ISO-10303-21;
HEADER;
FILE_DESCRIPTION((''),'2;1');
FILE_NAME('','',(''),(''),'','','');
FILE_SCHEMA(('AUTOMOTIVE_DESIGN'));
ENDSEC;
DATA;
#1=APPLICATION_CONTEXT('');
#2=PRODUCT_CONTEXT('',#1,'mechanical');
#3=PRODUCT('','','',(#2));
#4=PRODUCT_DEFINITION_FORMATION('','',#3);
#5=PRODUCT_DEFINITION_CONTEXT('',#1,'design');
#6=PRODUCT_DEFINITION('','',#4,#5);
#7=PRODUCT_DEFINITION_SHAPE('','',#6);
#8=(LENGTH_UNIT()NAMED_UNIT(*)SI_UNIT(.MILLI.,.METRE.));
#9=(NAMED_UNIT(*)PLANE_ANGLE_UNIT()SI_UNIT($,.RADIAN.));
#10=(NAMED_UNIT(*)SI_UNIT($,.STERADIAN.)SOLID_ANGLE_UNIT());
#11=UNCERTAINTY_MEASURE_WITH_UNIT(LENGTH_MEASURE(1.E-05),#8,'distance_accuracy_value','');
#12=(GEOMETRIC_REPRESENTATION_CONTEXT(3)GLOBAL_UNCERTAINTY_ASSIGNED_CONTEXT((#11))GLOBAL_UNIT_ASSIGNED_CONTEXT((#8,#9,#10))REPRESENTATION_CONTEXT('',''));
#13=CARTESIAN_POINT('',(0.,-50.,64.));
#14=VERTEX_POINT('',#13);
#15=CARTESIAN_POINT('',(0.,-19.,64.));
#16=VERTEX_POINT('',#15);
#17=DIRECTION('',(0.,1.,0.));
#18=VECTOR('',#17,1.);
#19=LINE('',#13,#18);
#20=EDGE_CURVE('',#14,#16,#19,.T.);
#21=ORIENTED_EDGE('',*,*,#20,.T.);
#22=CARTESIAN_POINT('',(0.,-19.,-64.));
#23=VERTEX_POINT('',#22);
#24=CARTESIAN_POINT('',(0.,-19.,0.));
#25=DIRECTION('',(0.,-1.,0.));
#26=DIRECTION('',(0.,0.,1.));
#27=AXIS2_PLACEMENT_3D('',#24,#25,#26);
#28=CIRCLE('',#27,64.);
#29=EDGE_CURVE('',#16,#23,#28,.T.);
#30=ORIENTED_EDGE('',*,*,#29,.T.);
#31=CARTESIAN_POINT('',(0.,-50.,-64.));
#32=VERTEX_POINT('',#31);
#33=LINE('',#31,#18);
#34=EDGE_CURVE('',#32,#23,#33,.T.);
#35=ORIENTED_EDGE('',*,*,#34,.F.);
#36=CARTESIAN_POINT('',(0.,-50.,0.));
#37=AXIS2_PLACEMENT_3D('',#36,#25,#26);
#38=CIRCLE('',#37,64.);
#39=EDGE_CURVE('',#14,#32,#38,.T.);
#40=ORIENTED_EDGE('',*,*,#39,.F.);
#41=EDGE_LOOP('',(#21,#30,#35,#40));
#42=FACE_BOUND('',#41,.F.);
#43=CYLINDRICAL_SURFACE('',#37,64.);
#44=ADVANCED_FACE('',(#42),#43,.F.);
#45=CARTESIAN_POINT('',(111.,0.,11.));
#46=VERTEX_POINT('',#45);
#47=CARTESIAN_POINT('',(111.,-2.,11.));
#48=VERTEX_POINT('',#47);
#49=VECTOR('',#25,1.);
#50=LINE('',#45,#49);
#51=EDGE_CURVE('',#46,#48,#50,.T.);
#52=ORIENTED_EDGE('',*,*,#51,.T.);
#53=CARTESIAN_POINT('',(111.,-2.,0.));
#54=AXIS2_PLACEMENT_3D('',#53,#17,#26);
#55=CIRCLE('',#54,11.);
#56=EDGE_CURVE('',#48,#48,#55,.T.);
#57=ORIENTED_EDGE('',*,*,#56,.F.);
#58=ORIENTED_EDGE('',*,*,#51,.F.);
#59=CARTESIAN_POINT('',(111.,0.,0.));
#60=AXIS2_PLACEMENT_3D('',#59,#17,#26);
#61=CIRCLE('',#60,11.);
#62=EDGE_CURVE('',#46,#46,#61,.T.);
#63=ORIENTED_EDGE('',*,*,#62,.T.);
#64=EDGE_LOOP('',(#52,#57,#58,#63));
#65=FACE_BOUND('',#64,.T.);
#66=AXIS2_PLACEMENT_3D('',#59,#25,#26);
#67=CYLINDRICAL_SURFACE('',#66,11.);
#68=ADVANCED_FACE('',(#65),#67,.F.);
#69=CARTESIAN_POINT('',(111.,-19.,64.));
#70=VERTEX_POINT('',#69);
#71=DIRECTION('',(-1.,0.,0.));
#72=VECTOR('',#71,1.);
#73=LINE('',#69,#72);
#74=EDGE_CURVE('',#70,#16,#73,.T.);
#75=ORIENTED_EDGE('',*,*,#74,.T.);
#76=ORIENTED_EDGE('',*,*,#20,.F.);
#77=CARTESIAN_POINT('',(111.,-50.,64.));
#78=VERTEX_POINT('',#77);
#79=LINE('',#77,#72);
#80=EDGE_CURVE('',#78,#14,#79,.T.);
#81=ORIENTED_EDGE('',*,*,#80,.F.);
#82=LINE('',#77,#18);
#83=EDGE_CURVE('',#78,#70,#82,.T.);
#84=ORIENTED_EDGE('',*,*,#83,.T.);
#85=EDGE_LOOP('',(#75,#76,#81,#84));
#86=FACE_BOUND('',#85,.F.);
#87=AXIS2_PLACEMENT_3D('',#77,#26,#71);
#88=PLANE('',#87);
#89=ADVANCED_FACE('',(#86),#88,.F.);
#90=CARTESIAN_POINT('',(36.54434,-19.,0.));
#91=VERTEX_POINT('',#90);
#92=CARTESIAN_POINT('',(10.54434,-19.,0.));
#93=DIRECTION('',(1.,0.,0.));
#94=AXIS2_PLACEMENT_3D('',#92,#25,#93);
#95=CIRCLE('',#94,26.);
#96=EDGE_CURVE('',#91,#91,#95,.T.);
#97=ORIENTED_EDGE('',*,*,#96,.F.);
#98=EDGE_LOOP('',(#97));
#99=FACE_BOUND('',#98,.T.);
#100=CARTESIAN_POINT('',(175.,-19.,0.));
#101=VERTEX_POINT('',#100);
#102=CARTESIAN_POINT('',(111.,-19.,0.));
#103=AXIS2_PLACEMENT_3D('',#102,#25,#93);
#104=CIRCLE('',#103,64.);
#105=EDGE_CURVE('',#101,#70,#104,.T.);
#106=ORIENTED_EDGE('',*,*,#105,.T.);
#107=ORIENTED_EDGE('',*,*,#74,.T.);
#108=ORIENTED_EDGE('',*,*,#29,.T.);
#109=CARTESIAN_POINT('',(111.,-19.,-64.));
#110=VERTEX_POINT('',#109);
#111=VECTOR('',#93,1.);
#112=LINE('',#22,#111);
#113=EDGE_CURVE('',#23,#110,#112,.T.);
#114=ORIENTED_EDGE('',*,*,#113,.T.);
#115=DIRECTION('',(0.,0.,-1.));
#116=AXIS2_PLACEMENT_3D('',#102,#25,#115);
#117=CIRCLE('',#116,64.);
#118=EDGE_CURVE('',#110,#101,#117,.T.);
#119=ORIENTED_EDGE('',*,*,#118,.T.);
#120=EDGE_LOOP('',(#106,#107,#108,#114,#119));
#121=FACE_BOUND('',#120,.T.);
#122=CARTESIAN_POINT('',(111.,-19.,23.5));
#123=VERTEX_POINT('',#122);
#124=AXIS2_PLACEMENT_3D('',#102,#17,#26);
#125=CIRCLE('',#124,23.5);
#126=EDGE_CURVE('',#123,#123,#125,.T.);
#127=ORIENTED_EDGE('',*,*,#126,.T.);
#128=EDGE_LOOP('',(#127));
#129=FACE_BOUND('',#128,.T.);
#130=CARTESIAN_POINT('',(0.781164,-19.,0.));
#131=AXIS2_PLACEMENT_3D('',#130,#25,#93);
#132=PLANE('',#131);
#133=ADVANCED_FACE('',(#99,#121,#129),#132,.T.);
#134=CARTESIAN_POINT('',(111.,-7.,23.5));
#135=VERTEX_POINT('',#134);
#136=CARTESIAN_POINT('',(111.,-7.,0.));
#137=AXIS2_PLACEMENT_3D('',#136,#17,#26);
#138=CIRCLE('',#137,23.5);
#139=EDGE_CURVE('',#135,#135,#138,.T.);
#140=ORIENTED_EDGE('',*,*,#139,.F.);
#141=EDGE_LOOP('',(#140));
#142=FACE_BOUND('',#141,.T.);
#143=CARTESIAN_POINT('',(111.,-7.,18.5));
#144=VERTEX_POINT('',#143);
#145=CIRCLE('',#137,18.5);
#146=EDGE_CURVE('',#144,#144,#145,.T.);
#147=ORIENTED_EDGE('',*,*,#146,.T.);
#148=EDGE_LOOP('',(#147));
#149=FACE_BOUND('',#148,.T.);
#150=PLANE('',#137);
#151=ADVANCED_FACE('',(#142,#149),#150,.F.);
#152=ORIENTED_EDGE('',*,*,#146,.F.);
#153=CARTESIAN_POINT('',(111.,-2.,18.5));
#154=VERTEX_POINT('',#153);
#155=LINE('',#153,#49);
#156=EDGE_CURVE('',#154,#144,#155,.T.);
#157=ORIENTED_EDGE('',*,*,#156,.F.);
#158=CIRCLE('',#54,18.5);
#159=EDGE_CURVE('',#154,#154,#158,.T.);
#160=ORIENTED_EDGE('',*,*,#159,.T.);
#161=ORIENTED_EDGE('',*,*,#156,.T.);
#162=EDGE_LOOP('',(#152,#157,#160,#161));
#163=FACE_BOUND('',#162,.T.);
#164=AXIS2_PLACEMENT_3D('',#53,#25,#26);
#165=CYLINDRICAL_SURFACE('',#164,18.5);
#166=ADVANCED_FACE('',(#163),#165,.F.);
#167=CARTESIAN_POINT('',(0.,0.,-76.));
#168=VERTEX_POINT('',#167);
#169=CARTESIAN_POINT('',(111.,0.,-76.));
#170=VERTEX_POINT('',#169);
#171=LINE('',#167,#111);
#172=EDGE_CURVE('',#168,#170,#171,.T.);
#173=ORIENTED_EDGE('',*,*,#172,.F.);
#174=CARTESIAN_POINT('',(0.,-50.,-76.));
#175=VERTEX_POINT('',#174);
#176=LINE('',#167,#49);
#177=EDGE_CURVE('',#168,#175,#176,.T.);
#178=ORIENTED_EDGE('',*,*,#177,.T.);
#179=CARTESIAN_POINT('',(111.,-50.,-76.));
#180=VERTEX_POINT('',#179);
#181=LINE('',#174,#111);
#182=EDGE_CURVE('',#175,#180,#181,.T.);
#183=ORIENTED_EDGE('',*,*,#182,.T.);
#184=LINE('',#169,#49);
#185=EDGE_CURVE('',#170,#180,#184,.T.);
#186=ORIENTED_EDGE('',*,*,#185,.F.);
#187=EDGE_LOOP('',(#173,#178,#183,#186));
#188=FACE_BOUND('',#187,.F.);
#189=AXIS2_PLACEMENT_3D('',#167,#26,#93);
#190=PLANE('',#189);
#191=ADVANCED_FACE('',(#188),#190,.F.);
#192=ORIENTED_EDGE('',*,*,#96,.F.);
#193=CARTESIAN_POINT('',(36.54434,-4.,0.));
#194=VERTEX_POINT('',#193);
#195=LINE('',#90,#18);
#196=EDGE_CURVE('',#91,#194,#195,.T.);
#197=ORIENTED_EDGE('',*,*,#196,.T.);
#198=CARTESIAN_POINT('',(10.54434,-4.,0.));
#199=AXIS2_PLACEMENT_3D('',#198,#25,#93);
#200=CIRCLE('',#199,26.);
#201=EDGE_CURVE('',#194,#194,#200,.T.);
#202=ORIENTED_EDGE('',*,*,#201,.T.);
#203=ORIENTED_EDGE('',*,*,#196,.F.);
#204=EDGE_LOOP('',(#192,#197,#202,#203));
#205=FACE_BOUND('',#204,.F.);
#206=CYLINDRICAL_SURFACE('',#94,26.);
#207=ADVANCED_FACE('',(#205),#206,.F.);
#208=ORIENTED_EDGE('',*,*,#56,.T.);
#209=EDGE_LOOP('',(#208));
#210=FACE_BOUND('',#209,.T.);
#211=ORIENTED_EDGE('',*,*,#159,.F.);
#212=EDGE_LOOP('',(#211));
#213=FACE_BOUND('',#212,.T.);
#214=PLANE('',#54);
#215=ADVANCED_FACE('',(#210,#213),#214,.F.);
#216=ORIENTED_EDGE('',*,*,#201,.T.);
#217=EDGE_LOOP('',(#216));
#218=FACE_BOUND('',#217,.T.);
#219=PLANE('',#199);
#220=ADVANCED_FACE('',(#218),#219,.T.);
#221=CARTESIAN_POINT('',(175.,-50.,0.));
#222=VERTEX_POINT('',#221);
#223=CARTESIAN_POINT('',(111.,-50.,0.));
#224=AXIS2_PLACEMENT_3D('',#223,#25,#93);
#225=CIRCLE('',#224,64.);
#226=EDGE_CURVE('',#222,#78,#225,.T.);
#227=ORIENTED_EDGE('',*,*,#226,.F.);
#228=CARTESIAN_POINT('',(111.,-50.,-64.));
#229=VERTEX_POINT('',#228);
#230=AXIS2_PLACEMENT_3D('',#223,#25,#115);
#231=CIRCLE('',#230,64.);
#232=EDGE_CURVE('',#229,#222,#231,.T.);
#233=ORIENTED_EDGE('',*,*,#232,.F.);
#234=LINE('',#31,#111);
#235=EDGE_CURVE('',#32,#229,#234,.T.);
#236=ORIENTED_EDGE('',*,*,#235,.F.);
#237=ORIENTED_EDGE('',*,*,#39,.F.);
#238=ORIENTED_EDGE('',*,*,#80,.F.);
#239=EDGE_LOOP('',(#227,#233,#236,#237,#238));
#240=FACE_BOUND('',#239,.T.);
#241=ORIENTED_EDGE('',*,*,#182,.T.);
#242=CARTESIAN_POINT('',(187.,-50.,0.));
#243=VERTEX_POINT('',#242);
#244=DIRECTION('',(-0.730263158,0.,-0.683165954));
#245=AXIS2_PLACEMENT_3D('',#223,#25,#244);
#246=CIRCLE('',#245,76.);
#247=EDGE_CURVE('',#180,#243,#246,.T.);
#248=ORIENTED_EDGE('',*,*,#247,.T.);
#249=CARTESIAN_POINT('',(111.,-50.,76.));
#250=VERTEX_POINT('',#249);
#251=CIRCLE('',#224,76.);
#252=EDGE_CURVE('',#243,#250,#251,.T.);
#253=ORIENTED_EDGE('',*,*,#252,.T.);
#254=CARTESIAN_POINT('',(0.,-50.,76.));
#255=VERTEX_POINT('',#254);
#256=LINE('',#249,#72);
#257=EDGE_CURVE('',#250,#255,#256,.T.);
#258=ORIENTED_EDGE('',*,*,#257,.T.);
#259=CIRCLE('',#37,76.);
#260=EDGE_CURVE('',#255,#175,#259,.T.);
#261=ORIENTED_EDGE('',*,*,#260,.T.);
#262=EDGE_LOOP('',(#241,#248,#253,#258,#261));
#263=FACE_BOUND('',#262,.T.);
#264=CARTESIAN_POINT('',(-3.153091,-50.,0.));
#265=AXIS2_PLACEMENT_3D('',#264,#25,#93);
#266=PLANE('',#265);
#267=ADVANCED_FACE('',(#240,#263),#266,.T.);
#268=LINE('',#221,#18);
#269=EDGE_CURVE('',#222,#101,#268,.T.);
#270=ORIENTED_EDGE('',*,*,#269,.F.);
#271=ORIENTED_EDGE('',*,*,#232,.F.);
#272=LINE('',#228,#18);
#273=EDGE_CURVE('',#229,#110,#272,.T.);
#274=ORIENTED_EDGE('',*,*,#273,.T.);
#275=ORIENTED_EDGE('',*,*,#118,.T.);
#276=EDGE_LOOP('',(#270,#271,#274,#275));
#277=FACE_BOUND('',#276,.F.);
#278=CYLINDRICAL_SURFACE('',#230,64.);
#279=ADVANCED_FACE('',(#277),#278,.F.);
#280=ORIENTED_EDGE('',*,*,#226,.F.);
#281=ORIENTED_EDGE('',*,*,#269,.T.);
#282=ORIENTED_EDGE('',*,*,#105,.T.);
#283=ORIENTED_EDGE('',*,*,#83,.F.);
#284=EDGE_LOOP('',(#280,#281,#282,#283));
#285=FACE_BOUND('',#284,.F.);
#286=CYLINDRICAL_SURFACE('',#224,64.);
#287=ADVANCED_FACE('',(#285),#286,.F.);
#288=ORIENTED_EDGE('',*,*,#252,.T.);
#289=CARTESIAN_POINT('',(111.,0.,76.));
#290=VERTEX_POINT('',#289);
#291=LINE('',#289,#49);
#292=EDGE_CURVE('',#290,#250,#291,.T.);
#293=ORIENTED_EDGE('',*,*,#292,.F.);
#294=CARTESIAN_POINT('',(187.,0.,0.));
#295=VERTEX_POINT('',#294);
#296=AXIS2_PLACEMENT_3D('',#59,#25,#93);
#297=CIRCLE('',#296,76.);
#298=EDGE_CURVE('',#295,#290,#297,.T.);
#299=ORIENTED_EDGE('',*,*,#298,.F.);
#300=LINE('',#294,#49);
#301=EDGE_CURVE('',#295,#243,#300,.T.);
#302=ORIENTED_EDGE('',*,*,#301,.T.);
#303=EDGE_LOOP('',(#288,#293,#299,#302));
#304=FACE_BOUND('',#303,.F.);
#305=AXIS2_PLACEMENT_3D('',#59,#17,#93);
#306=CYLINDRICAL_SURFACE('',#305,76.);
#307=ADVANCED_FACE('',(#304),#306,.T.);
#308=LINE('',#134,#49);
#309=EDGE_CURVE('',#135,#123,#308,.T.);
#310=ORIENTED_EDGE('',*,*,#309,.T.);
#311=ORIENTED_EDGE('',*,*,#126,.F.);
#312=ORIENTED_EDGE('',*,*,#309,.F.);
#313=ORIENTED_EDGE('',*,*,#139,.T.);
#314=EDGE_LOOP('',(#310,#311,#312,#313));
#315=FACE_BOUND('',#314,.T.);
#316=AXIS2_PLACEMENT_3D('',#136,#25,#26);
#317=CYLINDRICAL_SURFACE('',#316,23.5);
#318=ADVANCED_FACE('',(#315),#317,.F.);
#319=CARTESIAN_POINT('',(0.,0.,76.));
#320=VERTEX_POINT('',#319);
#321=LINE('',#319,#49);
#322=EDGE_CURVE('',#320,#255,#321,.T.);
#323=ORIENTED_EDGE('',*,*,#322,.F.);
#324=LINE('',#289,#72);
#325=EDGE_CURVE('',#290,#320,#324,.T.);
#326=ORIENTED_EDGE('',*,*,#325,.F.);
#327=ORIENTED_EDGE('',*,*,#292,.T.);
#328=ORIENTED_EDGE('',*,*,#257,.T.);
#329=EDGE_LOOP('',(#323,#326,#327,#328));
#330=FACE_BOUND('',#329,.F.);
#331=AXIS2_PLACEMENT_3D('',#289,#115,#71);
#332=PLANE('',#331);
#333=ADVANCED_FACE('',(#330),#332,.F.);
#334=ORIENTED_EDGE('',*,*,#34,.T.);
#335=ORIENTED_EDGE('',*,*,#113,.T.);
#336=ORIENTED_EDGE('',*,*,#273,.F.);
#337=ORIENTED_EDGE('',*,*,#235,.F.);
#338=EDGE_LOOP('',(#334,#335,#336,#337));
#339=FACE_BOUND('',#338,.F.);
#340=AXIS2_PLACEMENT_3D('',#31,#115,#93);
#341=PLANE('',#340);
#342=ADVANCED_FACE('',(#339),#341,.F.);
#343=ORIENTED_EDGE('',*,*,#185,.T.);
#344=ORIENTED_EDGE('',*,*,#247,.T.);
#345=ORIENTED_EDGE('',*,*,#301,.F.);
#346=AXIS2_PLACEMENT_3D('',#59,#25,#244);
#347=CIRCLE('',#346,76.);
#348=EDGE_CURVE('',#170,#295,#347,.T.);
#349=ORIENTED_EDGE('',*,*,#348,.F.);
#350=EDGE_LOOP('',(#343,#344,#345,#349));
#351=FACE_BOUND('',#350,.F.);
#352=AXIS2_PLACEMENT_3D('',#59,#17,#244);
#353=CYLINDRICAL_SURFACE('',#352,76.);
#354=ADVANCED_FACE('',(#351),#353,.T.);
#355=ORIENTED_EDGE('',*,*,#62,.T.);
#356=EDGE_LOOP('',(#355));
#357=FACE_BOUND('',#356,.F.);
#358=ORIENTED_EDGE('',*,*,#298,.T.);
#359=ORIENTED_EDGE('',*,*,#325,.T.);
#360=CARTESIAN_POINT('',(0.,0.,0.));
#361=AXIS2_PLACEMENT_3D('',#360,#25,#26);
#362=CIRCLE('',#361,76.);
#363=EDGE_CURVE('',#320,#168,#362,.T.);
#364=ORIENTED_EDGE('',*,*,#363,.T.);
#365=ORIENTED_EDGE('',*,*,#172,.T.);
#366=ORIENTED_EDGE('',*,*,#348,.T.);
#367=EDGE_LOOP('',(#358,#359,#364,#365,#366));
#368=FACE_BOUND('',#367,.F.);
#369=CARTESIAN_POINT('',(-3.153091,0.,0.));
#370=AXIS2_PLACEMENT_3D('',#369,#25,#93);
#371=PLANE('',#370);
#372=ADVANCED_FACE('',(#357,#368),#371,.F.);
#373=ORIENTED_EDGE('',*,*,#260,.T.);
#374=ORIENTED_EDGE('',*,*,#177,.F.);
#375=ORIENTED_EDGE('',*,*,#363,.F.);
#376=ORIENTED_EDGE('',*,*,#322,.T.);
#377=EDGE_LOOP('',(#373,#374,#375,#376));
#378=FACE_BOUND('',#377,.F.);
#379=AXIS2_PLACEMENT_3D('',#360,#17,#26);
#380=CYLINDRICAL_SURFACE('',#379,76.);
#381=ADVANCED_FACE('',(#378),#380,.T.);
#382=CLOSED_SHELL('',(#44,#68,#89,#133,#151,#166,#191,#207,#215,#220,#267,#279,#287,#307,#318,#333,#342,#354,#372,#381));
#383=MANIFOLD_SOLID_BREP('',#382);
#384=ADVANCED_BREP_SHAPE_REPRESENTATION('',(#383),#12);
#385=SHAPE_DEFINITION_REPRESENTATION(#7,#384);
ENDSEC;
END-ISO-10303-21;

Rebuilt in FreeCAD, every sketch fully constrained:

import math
import FreeCAD as App
import Part
import Sketcher


def add_polygon(sketch, points):
    """Adds a closed chain of lines whose ends are joined by coincident constraints."""
    first, n = sketch.GeometryCount, len(points)
    for a, b in zip(points, points[1:] + points[:1]):
        sketch.addGeometry(Part.LineSegment(App.Vector(*a, 0), App.Vector(*b, 0)), False)
    for i in range(n):
        sketch.addConstraint(Sketcher.Constraint("Coincident", first + i, 2, first + (i + 1) % n, 1))

doc = App.newDocument("Part")
body = doc.addObject("PartDesign::Body", "Body")

# Sketch on XZ plane
sketch1 = body.newObject("Sketcher::SketchObject", "Sketch")
sketch1.AttachmentSupport = (doc.getObject("XZ_Plane"), [""])
sketch1.MapMode = "FlatFace"
sketch1.addGeometry([
    Part.ArcOfCircle(Part.Circle(App.Vector(0, 0, 0), App.Vector(0, 0, 1), 76), math.radians(90), math.radians(270)),  # 0
    Part.LineSegment(App.Vector(0, -76, 0), App.Vector(111, -76, 0)),  # 1
    Part.ArcOfCircle(Part.Circle(App.Vector(111, 0, 0), App.Vector(0, 0, 1), 76), math.radians(-90), math.radians(0)),  # 2
    Part.ArcOfCircle(Part.Circle(App.Vector(111, 0, 0), App.Vector(0, 0, 1), 76), math.radians(0), math.radians(90)),  # 3
    Part.LineSegment(App.Vector(111, 76, 0), App.Vector(0, 76, 0)),  # 4
], False)
sketch1.addConstraint([
    Sketcher.Constraint("Tangent", 0, 2, 1, 1),
    Sketcher.Constraint("Tangent", 1, 2, 2, 1),
    Sketcher.Constraint("Tangent", 2, 2, 3, 1),
    Sketcher.Constraint("Tangent", 3, 2, 4, 1),
    Sketcher.Constraint("Tangent", 4, 2, 0, 1),
    Sketcher.Constraint("Horizontal", 1),
    Sketcher.Constraint("Horizontal", 4),
    Sketcher.Constraint("Coincident", 0, 3, -1, 1),
    Sketcher.Constraint("Equal", 0, 2),
    Sketcher.Constraint("PointOnObject", 2, 2, -1),
    Sketcher.Constraint("Radius", 0, 76.0),
    Sketcher.Constraint("DistanceX", 1, 1, 1, 2, 111.0),
])
pad1 = body.newObject("PartDesign::Pad", "Pad")
pad1.Profile = sketch1
pad1.Length = 50

# Sketch on XZ plane
sketch2 = body.newObject("Sketcher::SketchObject", "Sketch001")
sketch2.AttachmentSupport = (doc.getObject("XZ_Plane"), [""])
sketch2.MapMode = "FlatFace"
sketch2.AttachmentOffset = App.Placement(App.Vector(0, 0, 50), App.Rotation())
sketch2.addGeometry([
    Part.ArcOfCircle(Part.Circle(App.Vector(0, 0, 0), App.Vector(0, 0, 1), 64), math.radians(90), math.radians(270)),  # 0
    Part.LineSegment(App.Vector(0, -64, 0), App.Vector(111, -64, 0)),  # 1
    Part.ArcOfCircle(Part.Circle(App.Vector(111, 0, 0), App.Vector(0, 0, 1), 64), math.radians(-90), math.radians(0)),  # 2
    Part.ArcOfCircle(Part.Circle(App.Vector(111, 0, 0), App.Vector(0, 0, 1), 64), math.radians(0), math.radians(90)),  # 3
    Part.LineSegment(App.Vector(111, 64, 0), App.Vector(0, 64, 0)),  # 4
], False)
sketch2.addConstraint([
    Sketcher.Constraint("Tangent", 0, 2, 1, 1),
    Sketcher.Constraint("Tangent", 1, 2, 2, 1),
    Sketcher.Constraint("Tangent", 2, 2, 3, 1),
    Sketcher.Constraint("Tangent", 3, 2, 4, 1),
    Sketcher.Constraint("Tangent", 4, 2, 0, 1),
    Sketcher.Constraint("Horizontal", 1),
    Sketcher.Constraint("Horizontal", 4),
    Sketcher.Constraint("Coincident", 0, 3, -1, 1),
    Sketcher.Constraint("Equal", 0, 2),
    Sketcher.Constraint("PointOnObject", 2, 2, -1),
    Sketcher.Constraint("Radius", 0, 64.0),
    Sketcher.Constraint("DistanceX", 1, 1, 1, 2, 111.0),
])
pocket1 = body.newObject("PartDesign::Pocket", "Pocket")
pocket1.Profile = sketch2
pocket1.Length = 31

# Sketch on XZ plane
sketch3 = body.newObject("Sketcher::SketchObject", "Sketch002")
sketch3.AttachmentSupport = (doc.getObject("XZ_Plane"), [""])
sketch3.MapMode = "FlatFace"
sketch3.AttachmentOffset = App.Placement(App.Vector(0, 0, 19), App.Rotation())
sketch3.addGeometry(Part.Circle(App.Vector(11, 0, 0), App.Vector(0, 0, 1), 26), False)
sketch3.addConstraint([
    Sketcher.Constraint("PointOnObject", 0, 3, -1),
    Sketcher.Constraint("Diameter", 0, 52.0),
    Sketcher.Constraint("DistanceX", -1, 1, 0, 3, 10.54434),
])
pocket2 = body.newObject("PartDesign::Pocket", "Pocket001")
pocket2.Profile = sketch3
pocket2.Length = 15

# Sketch on YZ plane
sketch4 = body.newObject("Sketcher::SketchObject", "Sketch003")
sketch4.AttachmentSupport = (doc.getObject("YZ_Plane"), [""])
sketch4.MapMode = "FlatFace"
sketch4.AttachmentOffset = App.Placement(App.Vector(0, 0, 111), App.Rotation())
add_polygon(sketch4, [(0, 0), (0, 11), (-2, 11), (-2, 18.5), (-7, 18.5), (-7, 23.5), (-19, 23.5), (-19, 0)])  # lines 0-7
sketch4.addConstraint([
    Sketcher.Constraint("Vertical", 0),
    Sketcher.Constraint("Horizontal", 1),
    Sketcher.Constraint("Vertical", 2),
    Sketcher.Constraint("Horizontal", 3),
    Sketcher.Constraint("Vertical", 4),
    Sketcher.Constraint("Horizontal", 5),
    Sketcher.Constraint("Vertical", 6),
    Sketcher.Constraint("Horizontal", 7),
    Sketcher.Constraint("Coincident", 7, 2, -1, 1),
    Sketcher.Constraint("Equal", 3, 4),
    Sketcher.Constraint("DistanceX", 1, 2, 1, 1, 2.0),
    Sketcher.Constraint("DistanceX", 3, 2, 3, 1, 5.0),
    Sketcher.Constraint("DistanceX", 5, 2, 5, 1, 12.0),
    Sketcher.Constraint("DistanceY", 0, 1, 0, 2, 11.0),
    Sketcher.Constraint("DistanceY", 2, 1, 2, 2, 7.5),
])
groove = body.newObject("PartDesign::Groove", "Groove")
groove.Profile = sketch4
groove.ReferenceAxis = (sketch4, ["H_Axis"])
groove.Angle = 360

doc.recompute()
